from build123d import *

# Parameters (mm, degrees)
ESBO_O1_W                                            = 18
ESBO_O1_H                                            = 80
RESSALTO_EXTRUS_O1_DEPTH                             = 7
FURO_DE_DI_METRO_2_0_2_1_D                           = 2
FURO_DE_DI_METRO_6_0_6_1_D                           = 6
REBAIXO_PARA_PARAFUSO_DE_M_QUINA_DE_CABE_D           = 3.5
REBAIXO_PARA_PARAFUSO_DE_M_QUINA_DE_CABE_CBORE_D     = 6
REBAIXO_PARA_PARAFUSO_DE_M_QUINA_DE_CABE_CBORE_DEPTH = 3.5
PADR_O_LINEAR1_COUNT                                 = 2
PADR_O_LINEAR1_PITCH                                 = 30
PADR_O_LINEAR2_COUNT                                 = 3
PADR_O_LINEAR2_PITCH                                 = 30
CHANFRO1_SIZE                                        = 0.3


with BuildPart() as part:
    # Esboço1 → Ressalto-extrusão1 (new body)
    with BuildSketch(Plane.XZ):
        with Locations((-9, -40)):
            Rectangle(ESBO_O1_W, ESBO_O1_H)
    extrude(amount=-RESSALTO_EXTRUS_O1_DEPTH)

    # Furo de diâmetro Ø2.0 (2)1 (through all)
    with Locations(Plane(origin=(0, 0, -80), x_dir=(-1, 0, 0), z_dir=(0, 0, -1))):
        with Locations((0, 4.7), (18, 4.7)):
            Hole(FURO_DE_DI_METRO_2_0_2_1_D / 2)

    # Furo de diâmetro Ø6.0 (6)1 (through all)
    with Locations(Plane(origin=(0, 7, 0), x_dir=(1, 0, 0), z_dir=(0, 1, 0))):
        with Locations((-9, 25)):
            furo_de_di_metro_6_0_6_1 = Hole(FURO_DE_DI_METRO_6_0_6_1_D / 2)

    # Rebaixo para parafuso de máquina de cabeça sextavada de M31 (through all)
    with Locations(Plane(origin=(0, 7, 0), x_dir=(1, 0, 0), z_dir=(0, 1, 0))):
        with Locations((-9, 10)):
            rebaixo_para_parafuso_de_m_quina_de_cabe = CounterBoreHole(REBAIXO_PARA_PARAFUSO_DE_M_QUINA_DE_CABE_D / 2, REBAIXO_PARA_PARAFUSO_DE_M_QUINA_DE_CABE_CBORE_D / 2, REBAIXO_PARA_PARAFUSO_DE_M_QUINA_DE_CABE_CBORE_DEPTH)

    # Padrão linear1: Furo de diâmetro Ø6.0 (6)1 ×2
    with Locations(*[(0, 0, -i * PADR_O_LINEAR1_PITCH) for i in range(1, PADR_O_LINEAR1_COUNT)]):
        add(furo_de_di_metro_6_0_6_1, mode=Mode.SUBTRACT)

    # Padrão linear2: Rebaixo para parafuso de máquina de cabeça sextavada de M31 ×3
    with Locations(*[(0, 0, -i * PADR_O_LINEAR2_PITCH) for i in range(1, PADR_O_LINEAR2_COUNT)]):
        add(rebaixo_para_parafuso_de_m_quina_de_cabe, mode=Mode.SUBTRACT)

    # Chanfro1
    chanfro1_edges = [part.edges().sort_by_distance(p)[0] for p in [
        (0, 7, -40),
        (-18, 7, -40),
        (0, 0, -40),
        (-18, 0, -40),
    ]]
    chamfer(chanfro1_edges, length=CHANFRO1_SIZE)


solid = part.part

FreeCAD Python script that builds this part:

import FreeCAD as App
import Part
import Sketcher
Q = App.Units.Quantity


def edges_at(feature, points):
    """Names of the edges that pass closest to the given points."""
    edges = feature.Shape.Edges
    near = lambda p: min(range(len(edges)), key=lambda i: edges[i].distToShape(Part.Vertex(*p))[0])
    return sorted({f"Edge{near(p) + 1}" for p in points})


def add_polygon(sketch, points):
    """Adds a closed chain of lines whose ends are joined by coincident constraints."""
    first, n = sketch.GeometryCount, len(points)
    for a, b in zip(points, points[1:] + points[:1]):
        sketch.addGeometry(Part.LineSegment(App.Vector(*a, 0), App.Vector(*b, 0)), False)
    for i in range(n):
        sketch.addConstraint(Sketcher.Constraint("Coincident", first + i, 2, first + (i + 1) % n, 1))

doc = App.newDocument("Part")
params = doc.addObject("Spreadsheet::Sheet", "Params")
for row, (alias, value) in enumerate([
    ("sketch1_width", "18 mm"),
    ("sketch1_height", "80 mm"),
    ("pad1_length", "7 mm"),
    ("sketch2_diameter", "2 mm"),
    ("hole_diameter", "2 mm"),
    ("sketch3_diameter", "6 mm"),
    ("hole2_diameter", "6 mm"),
    ("sketch4_diameter", "3.5 mm"),
    ("hole3_diameter", "3.5 mm"),
    ("hole3_cbore_diameter", "6 mm"),
    ("hole3_cbore_depth", "3.5 mm"),
    ("linearpattern_pitch", "30 mm"),
    ("linearpattern2_pitch", "30 mm"),
    ("chamfer_size", "0.3 mm"),
], start=1):
    params.set(f"A{row}", alias)
    params.set(f"B{row}", "=" + value)
    params.setAlias(f"B{row}", alias)

body = doc.addObject("PartDesign::Body", "Body")

# Sketch on XZ plane
sketch1 = body.newObject("Sketcher::SketchObject", "Sketch")
sketch1.AttachmentSupport = (doc.getObject("XZ_Plane"), [""])
sketch1.MapMode = "FlatFace"
add_polygon(sketch1, [(-18, 0), (-18, -80), (0, -80), (0, 0)])  # lines 0-3
sketch1.addConstraint(Sketcher.Constraint("Vertical", 0))
sketch1.addConstraint(Sketcher.Constraint("Horizontal", 1))
sketch1.addConstraint(Sketcher.Constraint("Vertical", 2))
sketch1.addConstraint(Sketcher.Constraint("Horizontal", 3))
sketch1.addConstraint(Sketcher.Constraint("Coincident", 2, 2, -1, 1))
sketch1.addConstraint(Sketcher.Constraint("DistanceX", 1, 1, 1, 2, Q("18 mm")))
sketch1.addConstraint(Sketcher.Constraint("DistanceY", 0, 2, 0, 1, Q("80 mm")))
sketch1.setExpression("Constraints[9]", "Params.sketch1_width")
sketch1.setExpression("Constraints[10]", "Params.sketch1_height")
pad1 = body.newObject("PartDesign::Pad", "Pad")
pad1.Profile = sketch1
pad1.setExpression("Length", "Params.pad1_length")
pad1.Reversed = True

# Sketch on XY plane
sketch2 = body.newObject("Sketcher::SketchObject", "Sketch001")
sketch2.AttachmentSupport = (doc.getObject("XY_Plane"), [""])
sketch2.MapMode = "FlatFace"
sketch2.AttachmentOffset = App.Placement(App.Vector(0, 0, -80), App.Rotation())
sketch2.addGeometry(Part.Circle(App.Vector(0, 4.7, 0), App.Vector(0, 0, 1), 1), False)
sketch2.addGeometry(Part.Circle(App.Vector(-18, 4.7, 0), App.Vector(0, 0, 1), 1), False)
sketch2.addConstraint(Sketcher.Constraint("Equal", 0, 1))
sketch2.addConstraint(Sketcher.Constraint("PointOnObject", 0, 3, -2))
sketch2.addConstraint(Sketcher.Constraint("Horizontal", 0, 3, 1, 3))
sketch2.addConstraint(Sketcher.Constraint("Diameter", 0, Q("2 mm")))
sketch2.addConstraint(Sketcher.Constraint("DistanceX", 1, 3, -1, 1, Q("18 mm")))
sketch2.addConstraint(Sketcher.Constraint("DistanceY", -1, 1, 0, 3, Q("4.7 mm")))
sketch2.setExpression("Constraints[3]", "Params.sketch2_diameter")
doc.recompute()
hole = body.newObject("PartDesign::Hole", "Hole")
hole.Profile = sketch2
hole.ThreadType = "None"
hole.setExpression("Diameter", "Params.hole_diameter")
hole.DepthType = "ThroughAll"
hole.Reversed = True

# Sketch on XZ plane
sketch3 = body.newObject("Sketcher::SketchObject", "Sketch002")
sketch3.AttachmentSupport = (doc.getObject("XZ_Plane"), [""])
sketch3.MapMode = "FlatFace"
sketch3.AttachmentOffset = App.Placement(App.Vector(0, 0, -7), App.Rotation())
sketch3.addGeometry(Part.Circle(App.Vector(-9, -25, 0), App.Vector(0, 0, 1), 3), False)
sketch3.addConstraint(Sketcher.Constraint("Diameter", 0, Q("6 mm")))
sketch3.addConstraint(Sketcher.Constraint("DistanceX", 0, 3, -1, 1, Q("9 mm")))
sketch3.addConstraint(Sketcher.Constraint("DistanceY", 0, 3, -1, 1, Q("25 mm")))
sketch3.setExpression("Constraints[0]", "Params.sketch3_diameter")
doc.recompute()
hole2 = body.newObject("PartDesign::Hole", "Hole001")
hole2.Profile = sketch3
hole2.ThreadType = "None"
hole2.setExpression("Diameter", "Params.hole2_diameter")
hole2.DepthType = "ThroughAll"
hole2.Reversed = True

# Sketch on XZ plane
sketch4 = body.newObject("Sketcher::SketchObject", "Sketch003")
sketch4.AttachmentSupport = (doc.getObject("XZ_Plane"), [""])
sketch4.MapMode = "FlatFace"
sketch4.AttachmentOffset = App.Placement(App.Vector(0, 0, -7), App.Rotation())
sketch4.addGeometry(Part.Circle(App.Vector(-9, -10, 0), App.Vector(0, 0, 1), 1.8), False)
sketch4.addConstraint(Sketcher.Constraint("Diameter", 0, Q("3.5 mm")))
sketch4.addConstraint(Sketcher.Constraint("DistanceX", 0, 3, -1, 1, Q("9 mm")))
sketch4.addConstraint(Sketcher.Constraint("DistanceY", 0, 3, -1, 1, Q("10 mm")))
sketch4.setExpression("Constraints[0]", "Params.sketch4_diameter")
doc.recompute()
hole3 = body.newObject("PartDesign::Hole", "Hole002")
hole3.Profile = sketch4
hole3.ThreadType = "None"
hole3.setExpression("Diameter", "Params.hole3_diameter")
hole3.DepthType = "ThroughAll"
hole3.HoleCutType = "Counterbore"
hole3.setExpression("HoleCutDiameter", "Params.hole3_cbore_diameter")
hole3.setExpression("HoleCutDepth", "Params.hole3_cbore_depth")
hole3.Reversed = True
doc.recompute()

linearpattern = body.newObject("PartDesign::LinearPattern", "LinearPattern")
linearpattern.Originals = [hole2]
linearpattern.Direction = (doc.getObject("Z_Axis"), [""])
linearpattern.Mode = "offset"
linearpattern.setExpression("Offset", "Params.linearpattern_pitch")
linearpattern.Occurrences = 2
linearpattern.Reversed = True
body.Tip = linearpattern
doc.recompute()

linearpattern2 = body.newObject("PartDesign::LinearPattern", "LinearPattern001")
linearpattern2.Originals = [hole3]
linearpattern2.Direction = (doc.getObject("Z_Axis"), [""])
linearpattern2.Mode = "offset"
linearpattern2.setExpression("Offset", "Params.linearpattern2_pitch")
linearpattern2.Occurrences = 3
linearpattern2.Reversed = True
body.Tip = linearpattern2
doc.recompute()

chamfer = body.newObject("PartDesign::Chamfer", "Chamfer")
chamfer.Base = (linearpattern2, edges_at(linearpattern2, [
    (0, 7, -40),
    (-18, 7, -40),
    (0, 0, -40),
    (-18, 0, -40),
]))
chamfer.setExpression("Size", "Params.chamfer_size")

doc.recompute()
